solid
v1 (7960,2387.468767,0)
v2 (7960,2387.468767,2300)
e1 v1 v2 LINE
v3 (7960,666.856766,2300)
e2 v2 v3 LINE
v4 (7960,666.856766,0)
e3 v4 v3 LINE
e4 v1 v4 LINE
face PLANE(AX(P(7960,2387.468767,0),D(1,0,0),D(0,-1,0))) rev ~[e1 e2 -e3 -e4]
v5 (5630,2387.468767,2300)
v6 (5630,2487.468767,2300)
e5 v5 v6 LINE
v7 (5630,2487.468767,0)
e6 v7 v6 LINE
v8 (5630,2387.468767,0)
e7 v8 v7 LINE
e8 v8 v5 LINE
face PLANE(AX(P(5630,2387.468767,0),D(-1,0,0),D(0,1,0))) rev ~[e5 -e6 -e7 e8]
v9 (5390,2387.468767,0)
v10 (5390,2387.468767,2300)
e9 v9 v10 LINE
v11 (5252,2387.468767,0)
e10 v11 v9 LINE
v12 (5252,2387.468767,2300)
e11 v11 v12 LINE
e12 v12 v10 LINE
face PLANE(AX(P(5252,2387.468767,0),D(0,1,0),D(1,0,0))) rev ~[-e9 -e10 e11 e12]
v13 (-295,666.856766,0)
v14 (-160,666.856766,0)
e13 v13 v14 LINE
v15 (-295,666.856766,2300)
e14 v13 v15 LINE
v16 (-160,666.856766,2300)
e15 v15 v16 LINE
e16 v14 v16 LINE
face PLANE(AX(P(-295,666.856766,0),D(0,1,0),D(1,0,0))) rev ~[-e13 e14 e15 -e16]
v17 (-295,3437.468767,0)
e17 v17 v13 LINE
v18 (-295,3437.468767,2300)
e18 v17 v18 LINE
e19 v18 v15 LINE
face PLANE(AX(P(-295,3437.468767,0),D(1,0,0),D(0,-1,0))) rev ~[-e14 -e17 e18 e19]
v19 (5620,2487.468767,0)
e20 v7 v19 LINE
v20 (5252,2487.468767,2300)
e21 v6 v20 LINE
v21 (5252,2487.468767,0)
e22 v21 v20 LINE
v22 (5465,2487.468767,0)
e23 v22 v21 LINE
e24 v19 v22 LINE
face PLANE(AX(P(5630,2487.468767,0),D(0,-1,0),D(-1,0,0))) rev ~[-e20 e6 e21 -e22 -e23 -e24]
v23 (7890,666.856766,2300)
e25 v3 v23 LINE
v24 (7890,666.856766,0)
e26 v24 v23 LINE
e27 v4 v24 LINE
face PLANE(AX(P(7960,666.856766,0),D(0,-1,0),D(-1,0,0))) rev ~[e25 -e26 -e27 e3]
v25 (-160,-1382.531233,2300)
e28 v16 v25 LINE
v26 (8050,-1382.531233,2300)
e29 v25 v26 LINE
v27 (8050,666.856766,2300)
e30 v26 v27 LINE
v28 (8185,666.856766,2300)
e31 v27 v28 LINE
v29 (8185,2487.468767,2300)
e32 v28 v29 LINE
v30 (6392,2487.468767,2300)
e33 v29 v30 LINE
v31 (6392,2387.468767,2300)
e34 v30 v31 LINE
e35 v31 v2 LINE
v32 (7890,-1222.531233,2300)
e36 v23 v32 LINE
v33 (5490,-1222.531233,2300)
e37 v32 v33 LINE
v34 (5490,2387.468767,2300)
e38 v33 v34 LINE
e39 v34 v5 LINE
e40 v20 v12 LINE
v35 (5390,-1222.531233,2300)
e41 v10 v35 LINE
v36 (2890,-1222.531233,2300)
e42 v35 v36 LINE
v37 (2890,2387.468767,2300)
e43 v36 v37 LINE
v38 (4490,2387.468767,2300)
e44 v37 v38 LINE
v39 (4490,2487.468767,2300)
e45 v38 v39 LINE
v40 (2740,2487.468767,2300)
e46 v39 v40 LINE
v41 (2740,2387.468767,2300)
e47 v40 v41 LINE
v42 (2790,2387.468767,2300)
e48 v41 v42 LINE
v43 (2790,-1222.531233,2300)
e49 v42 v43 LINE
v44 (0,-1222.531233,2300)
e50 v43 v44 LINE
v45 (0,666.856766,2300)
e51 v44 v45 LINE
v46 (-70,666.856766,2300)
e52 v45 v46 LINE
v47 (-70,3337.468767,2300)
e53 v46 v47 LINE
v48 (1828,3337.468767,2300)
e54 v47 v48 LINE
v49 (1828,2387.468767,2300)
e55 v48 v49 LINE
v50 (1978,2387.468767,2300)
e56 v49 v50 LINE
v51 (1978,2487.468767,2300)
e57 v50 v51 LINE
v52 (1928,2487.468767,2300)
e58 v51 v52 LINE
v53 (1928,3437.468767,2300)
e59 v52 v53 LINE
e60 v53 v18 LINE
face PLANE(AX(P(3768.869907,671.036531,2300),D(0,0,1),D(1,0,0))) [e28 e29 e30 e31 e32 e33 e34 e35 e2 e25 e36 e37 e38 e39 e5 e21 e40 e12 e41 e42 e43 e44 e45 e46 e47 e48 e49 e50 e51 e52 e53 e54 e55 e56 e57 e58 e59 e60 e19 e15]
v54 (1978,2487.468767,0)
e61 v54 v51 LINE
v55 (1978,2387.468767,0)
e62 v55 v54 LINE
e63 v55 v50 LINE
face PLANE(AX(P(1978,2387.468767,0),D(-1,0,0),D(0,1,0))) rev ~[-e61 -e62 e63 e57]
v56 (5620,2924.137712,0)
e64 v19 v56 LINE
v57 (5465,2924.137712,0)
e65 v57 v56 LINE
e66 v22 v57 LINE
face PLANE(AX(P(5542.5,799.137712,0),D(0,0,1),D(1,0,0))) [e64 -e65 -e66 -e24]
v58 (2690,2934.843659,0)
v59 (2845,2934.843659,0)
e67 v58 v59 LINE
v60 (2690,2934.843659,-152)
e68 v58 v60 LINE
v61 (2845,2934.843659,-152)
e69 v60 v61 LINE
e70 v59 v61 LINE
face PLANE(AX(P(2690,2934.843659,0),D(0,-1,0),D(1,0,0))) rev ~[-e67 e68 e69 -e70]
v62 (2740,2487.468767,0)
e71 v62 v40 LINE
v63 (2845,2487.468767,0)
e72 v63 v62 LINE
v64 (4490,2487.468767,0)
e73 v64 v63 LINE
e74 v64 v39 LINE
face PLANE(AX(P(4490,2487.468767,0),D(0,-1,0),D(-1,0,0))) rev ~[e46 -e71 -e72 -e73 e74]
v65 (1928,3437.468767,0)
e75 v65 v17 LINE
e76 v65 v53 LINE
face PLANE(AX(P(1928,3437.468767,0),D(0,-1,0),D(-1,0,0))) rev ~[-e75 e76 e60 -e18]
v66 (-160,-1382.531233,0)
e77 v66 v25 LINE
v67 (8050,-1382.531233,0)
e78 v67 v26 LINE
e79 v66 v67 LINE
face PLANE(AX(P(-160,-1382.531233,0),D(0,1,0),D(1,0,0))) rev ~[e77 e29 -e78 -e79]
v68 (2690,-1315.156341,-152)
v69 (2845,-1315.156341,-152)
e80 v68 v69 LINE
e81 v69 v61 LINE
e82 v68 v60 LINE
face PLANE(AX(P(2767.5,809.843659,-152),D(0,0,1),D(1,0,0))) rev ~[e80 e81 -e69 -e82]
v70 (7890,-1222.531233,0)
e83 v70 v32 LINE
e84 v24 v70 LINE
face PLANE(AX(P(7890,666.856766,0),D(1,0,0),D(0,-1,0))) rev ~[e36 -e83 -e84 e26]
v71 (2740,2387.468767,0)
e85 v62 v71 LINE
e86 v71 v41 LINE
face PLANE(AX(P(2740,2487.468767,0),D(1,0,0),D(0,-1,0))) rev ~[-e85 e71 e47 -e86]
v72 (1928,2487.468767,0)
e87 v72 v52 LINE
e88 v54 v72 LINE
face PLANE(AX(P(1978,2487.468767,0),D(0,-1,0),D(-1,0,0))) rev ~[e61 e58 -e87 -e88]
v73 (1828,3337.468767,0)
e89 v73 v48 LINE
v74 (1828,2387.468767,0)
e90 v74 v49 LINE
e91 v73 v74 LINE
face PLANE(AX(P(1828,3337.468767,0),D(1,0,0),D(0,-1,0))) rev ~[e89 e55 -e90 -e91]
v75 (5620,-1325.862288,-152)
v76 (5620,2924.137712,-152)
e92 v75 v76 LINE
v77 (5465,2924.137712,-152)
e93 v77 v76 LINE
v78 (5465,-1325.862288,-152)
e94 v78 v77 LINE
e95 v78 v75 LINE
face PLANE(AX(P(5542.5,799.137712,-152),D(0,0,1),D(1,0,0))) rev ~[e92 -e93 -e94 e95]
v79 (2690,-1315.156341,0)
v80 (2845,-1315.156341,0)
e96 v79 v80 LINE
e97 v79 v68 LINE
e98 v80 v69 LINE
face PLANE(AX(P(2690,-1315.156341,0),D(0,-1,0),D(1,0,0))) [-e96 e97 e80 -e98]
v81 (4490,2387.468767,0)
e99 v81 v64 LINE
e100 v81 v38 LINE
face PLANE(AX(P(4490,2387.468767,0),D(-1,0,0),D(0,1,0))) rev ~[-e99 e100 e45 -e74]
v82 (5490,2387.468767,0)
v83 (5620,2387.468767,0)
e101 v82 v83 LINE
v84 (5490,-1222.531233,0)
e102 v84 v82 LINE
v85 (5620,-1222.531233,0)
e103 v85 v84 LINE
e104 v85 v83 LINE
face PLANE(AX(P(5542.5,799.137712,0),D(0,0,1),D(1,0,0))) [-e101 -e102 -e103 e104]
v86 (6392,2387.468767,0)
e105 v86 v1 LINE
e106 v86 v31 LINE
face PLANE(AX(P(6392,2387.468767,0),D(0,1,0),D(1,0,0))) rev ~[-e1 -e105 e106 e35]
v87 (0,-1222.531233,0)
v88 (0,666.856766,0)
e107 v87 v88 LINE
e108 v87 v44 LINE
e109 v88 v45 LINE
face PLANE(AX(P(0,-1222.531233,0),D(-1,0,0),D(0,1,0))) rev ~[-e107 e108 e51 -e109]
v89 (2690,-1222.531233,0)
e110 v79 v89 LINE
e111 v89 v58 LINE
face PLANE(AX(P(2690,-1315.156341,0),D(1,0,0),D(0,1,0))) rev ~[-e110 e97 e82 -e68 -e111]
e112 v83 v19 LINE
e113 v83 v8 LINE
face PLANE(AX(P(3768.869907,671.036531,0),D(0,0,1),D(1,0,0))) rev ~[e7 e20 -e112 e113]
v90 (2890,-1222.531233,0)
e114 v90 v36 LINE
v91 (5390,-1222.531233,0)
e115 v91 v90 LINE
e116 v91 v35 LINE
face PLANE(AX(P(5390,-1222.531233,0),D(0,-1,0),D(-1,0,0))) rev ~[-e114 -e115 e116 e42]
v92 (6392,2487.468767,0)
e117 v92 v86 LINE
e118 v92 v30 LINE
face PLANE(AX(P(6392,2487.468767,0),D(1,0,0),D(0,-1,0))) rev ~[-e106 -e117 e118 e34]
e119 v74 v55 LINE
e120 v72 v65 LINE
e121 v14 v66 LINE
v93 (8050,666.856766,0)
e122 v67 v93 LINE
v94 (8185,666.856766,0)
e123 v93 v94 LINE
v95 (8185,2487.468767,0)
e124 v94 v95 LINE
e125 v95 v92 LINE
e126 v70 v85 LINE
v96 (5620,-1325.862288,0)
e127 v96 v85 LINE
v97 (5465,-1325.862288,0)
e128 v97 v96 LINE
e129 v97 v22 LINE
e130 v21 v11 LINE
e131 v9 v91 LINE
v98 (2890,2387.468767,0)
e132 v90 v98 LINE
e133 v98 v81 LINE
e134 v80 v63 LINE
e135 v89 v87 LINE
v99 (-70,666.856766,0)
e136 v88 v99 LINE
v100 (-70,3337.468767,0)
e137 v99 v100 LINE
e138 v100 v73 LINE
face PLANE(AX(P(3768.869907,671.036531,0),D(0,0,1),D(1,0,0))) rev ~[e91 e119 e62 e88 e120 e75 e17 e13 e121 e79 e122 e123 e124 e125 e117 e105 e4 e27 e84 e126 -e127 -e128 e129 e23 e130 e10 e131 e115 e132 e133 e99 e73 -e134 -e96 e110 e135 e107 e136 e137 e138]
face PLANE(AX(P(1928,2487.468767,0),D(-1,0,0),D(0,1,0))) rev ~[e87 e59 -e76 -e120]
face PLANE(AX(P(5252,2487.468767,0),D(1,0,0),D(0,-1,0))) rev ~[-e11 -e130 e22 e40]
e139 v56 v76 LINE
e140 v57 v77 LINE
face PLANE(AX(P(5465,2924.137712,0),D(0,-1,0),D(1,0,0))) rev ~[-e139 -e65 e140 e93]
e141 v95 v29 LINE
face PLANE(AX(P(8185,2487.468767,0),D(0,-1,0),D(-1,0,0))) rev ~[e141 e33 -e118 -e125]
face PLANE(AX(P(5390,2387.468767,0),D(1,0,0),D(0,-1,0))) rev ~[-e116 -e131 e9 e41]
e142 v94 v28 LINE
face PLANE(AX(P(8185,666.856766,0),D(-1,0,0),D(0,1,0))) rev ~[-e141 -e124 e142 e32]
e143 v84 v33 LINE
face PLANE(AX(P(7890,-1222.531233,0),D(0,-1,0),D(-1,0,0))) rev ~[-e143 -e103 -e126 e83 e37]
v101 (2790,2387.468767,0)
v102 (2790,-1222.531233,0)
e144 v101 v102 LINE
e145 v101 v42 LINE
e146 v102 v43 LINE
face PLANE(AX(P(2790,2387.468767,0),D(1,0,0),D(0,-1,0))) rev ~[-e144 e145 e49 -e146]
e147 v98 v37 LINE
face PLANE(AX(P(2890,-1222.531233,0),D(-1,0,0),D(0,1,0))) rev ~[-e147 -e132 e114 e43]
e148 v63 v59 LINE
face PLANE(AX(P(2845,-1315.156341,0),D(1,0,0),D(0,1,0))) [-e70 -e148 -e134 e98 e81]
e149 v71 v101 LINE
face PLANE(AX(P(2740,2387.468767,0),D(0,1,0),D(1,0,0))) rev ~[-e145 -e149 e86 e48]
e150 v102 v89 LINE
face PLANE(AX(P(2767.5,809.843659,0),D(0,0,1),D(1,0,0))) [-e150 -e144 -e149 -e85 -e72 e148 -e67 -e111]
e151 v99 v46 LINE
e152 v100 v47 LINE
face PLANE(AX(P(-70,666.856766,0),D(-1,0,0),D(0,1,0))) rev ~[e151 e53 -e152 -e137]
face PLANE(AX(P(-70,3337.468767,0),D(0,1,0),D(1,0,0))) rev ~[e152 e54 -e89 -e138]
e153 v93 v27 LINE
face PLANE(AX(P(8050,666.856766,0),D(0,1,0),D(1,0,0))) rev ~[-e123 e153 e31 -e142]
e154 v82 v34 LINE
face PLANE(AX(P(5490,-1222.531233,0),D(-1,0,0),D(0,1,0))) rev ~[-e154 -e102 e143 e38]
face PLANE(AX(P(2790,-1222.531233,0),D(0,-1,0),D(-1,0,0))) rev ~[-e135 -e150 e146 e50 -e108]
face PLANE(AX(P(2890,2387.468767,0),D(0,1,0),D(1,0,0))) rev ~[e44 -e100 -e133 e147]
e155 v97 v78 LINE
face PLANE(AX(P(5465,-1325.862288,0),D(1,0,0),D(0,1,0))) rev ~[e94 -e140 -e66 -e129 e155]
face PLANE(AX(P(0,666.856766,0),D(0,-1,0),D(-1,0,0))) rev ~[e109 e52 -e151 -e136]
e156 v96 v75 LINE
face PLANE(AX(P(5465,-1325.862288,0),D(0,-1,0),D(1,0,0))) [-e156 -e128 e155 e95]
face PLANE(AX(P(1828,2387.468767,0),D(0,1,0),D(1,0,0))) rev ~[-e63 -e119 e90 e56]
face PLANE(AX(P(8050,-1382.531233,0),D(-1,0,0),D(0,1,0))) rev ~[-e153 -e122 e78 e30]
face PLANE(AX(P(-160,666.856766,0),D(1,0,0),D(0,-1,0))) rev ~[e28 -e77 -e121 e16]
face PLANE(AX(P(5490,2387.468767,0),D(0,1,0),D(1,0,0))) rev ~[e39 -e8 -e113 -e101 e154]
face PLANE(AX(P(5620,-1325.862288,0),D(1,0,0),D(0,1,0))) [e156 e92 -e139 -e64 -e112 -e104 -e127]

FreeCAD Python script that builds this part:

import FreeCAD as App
import Part
import Sketcher

V = App.Vector


def add_polygon(sketch, points):
    """Adds a closed chain of lines whose ends are joined by coincident constraints."""
    first, n = sketch.GeometryCount, len(points)
    for a, b in zip(points, points[1:] + points[:1]):
        sketch.addGeometry(Part.LineSegment(App.Vector(*a, 0), App.Vector(*b, 0)), False)
    for i in range(n):
        sketch.addConstraint(Sketcher.Constraint("Coincident", first + i, 2, first + (i + 1) % n, 1))

doc = App.newDocument("Part")
body = doc.addObject("PartDesign::Body", "Body")

sketch1 = body.newObject("Sketcher::SketchObject", "Sketch")
sketch1.AttachmentSupport = (doc.getObject("XY_Plane"), [""])
sketch1.MapMode = "FlatFace"
add_polygon(sketch1, [(2790, -1223), (0, -1223), (0, 667), (-70, 667), (-70, 3337), (1828, 3337), (1828, 2387), (1978, 2387), (1978, 2487), (1928, 2487), (1928, 3437), (-295, 3437), (-295, 667), (-160, 667), (-160, -1383), (8050, -1383), (8050, 667), (8185, 667), (8185, 2487), (6392, 2487), (6392, 2387), (7960, 2387), (7960, 667), (7890, 667), (7890, -1223), (5490, -1223), (5490, 2387), (5630, 2387), (5630, 2487), (5252, 2487), (5252, 2387), (5390, 2387), (5390, -1223), (2890, -1223), (2890, 2387), (4490, 2387), (4490, 2487), (2740, 2487), (2740, 2387), (2790, 2387)])
sketch1.addConstraint(Sketcher.Constraint("Horizontal", 0))
sketch1.addConstraint(Sketcher.Constraint("Vertical", 1))
sketch1.addConstraint(Sketcher.Constraint("Horizontal", 2))
sketch1.addConstraint(Sketcher.Constraint("Vertical", 3))
sketch1.addConstraint(Sketcher.Constraint("Horizontal", 4))
sketch1.addConstraint(Sketcher.Constraint("Vertical", 5))
sketch1.addConstraint(Sketcher.Constraint("Horizontal", 6))
sketch1.addConstraint(Sketcher.Constraint("Vertical", 7))
sketch1.addConstraint(Sketcher.Constraint("Horizontal", 8))
sketch1.addConstraint(Sketcher.Constraint("Vertical", 9))
sketch1.addConstraint(Sketcher.Constraint("Horizontal", 10))
sketch1.addConstraint(Sketcher.Constraint("Vertical", 11))
sketch1.addConstraint(Sketcher.Constraint("Horizontal", 12))
sketch1.addConstraint(Sketcher.Constraint("Vertical", 13))
sketch1.addConstraint(Sketcher.Constraint("Horizontal", 14))
sketch1.addConstraint(Sketcher.Constraint("Vertical", 15))
sketch1.addConstraint(Sketcher.Constraint("Horizontal", 16))
sketch1.addConstraint(Sketcher.Constraint("Vertical", 17))
sketch1.addConstraint(Sketcher.Constraint("Horizontal", 18))
sketch1.addConstraint(Sketcher.Constraint("Vertical", 19))
sketch1.addConstraint(Sketcher.Constraint("Horizontal", 20))
sketch1.addConstraint(Sketcher.Constraint("Vertical", 21))
sketch1.addConstraint(Sketcher.Constraint("Horizontal", 22))
sketch1.addConstraint(Sketcher.Constraint("Vertical", 23))
sketch1.addConstraint(Sketcher.Constraint("Horizontal", 24))
sketch1.addConstraint(Sketcher.Constraint("Vertical", 25))
sketch1.addConstraint(Sketcher.Constraint("Horizontal", 26))
sketch1.addConstraint(Sketcher.Constraint("Vertical", 27))
sketch1.addConstraint(Sketcher.Constraint("Horizontal", 28))
sketch1.addConstraint(Sketcher.Constraint("Vertical", 29))
sketch1.addConstraint(Sketcher.Constraint("Horizontal", 30))
sketch1.addConstraint(Sketcher.Constraint("Vertical", 31))
sketch1.addConstraint(Sketcher.Constraint("Horizontal", 32))
sketch1.addConstraint(Sketcher.Constraint("Vertical", 33))
sketch1.addConstraint(Sketcher.Constraint("Horizontal", 34))
sketch1.addConstraint(Sketcher.Constraint("Vertical", 35))
sketch1.addConstraint(Sketcher.Constraint("Horizontal", 36))
sketch1.addConstraint(Sketcher.Constraint("Vertical", 37))
sketch1.addConstraint(Sketcher.Constraint("Horizontal", 38))
sketch1.addConstraint(Sketcher.Constraint("Vertical", 39))
sketch1.addConstraint(Sketcher.Constraint("PointOnObject", 0, 2, -2))
sketch1.addConstraint(Sketcher.Constraint("Horizontal", 2, 2, 11, 2))
sketch1.addConstraint(Sketcher.Constraint("Horizontal", 12, 2, 15, 2))
sketch1.addConstraint(Sketcher.Constraint("Horizontal", 8, 2, 17, 2))
sketch1.addConstraint(Sketcher.Constraint("Horizontal", 6, 2, 19, 2))
sketch1.addConstraint(Sketcher.Constraint("Horizontal", 16, 2, 21, 2))
sketch1.addConstraint(Sketcher.Constraint("Horizontal", 0, 2, 23, 2))
sketch1.addConstraint(Sketcher.Constraint("Horizontal", 20, 2, 25, 2))
sketch1.addConstraint(Sketcher.Constraint("Horizontal", 18, 2, 27, 2))
sketch1.addConstraint(Sketcher.Constraint("Horizontal", 26, 2, 29, 2))
sketch1.addConstraint(Sketcher.Constraint("Horizontal", 24, 2, 31, 2))
sketch1.addConstraint(Sketcher.Constraint("Horizontal", 30, 2, 33, 2))
sketch1.addConstraint(Sketcher.Constraint("Horizontal", 28, 2, 35, 2))
sketch1.addConstraint(Sketcher.Constraint("Horizontal", 34, 2, 37, 2))
sketch1.addConstraint(Sketcher.Constraint("Equal", 12, 16))
sketch1.addConstraint(Sketcher.Constraint("Equal", 2, 22))
sketch1.addConstraint(Sketcher.Constraint("Equal", 8, 38))
sketch1.addConstraint(Sketcher.Constraint("Equal", 5, 9))
sketch1.addConstraint(Sketcher.Constraint("DistanceX", 0, 2, 0, 1, 2790.0))
sketch1.addConstraint(Sketcher.Constraint("DistanceX", 2, 2, 2, 1, 70.0))
sketch1.addConstraint(Sketcher.Constraint("DistanceX", 4, 1, 4, 2, 1898.0))
sketch1.addConstraint(Sketcher.Constraint("DistanceX", 6, 1, 6, 2, 150.0))
sketch1.addConstraint(Sketcher.Constraint("DistanceX", 8, 2, 8, 1, 50.0))
sketch1.addConstraint(Sketcher.Constraint("DistanceX", 10, 2, 10, 1, 2223.0))
sketch1.addConstraint(Sketcher.Constraint("DistanceX", 12, 1, 12, 2, 135.0))
sketch1.addConstraint(Sketcher.Constraint("DistanceX", 14, 1, 14, 2, 8210.0))
sketch1.addConstraint(Sketcher.Constraint("DistanceX", 18, 2, 18, 1, 1793.0))
sketch1.addConstraint(Sketcher.Constraint("DistanceX", 20, 1, 20, 2, 1568.0))
sketch1.addConstraint(Sketcher.Constraint("DistanceX", 24, 2, 24, 1, 2400.0))
sketch1.addConstraint(Sketcher.Constraint("DistanceX", 26, 1, 26, 2, 140.0))
sketch1.addConstraint(Sketcher.Constraint("DistanceX", 28, 2, 28, 1, 378.0))
sketch1.addConstraint(Sketcher.Constraint("DistanceX", 30, 1, 30, 2, 138.0))
sketch1.addConstraint(Sketcher.Constraint("DistanceX", 32, 2, 32, 1, 2500.0))
sketch1.addConstraint(Sketcher.Constraint("DistanceX", 34, 1, 34, 2, 1600.0))
sketch1.addConstraint(Sketcher.Constraint("DistanceY", 5, 2, 5, 1, 950.0))
sketch1.addConstraint(Sketcher.Constraint("DistanceY", 7, 1, 7, 2, 100.0))
sketch1.addConstraint(Sketcher.Constraint("DistanceY", 25, 1, 25, 2, 3610.0))
sketch1.addConstraint(Sketcher.Constraint("DistanceY", 13, 2, 0, 2, 160.0))
sketch1.addConstraint(Sketcher.Constraint("DistanceY", 1, 1, 1, 2, 1889.387999))
sketch1.addConstraint(Sketcher.Constraint("DistanceY", 0, 2, -1, 1, 1222.531233))
pad1 = body.newObject("PartDesign::Pad", "Pad")
pad1.Profile = sketch1
pad1.Length = 2300

sketch2 = body.newObject("Sketcher::SketchObject", "Sketch001")
sketch2.AttachmentSupport = (doc.getObject("XY_Plane"), [""])
sketch2.MapMode = "FlatFace"
add_polygon(sketch2, [(2690, 2935), (2690, -1315), (2845, -1315), (2845, 2935)])
add_polygon(sketch2, [(5465, 2924), (5465, -1326), (5620, -1326), (5620, 2924)])
sketch2.addConstraint(Sketcher.Constraint("Vertical", 0))
sketch2.addConstraint(Sketcher.Constraint("Horizontal", 1))
sketch2.addConstraint(Sketcher.Constraint("Vertical", 2))
sketch2.addConstraint(Sketcher.Constraint("Horizontal", 3))
sketch2.addConstraint(Sketcher.Constraint("Vertical", 4))
sketch2.addConstraint(Sketcher.Constraint("Horizontal", 5))
sketch2.addConstraint(Sketcher.Constraint("Vertical", 6))
sketch2.addConstraint(Sketcher.Constraint("Horizontal", 7))
sketch2.addConstraint(Sketcher.Constraint("Equal", 3, 5))
sketch2.addConstraint(Sketcher.Constraint("Equal", 2, 4))
sketch2.addConstraint(Sketcher.Constraint("DistanceX", 1, 1, 1, 2, 155.0))
sketch2.addConstraint(Sketcher.Constraint("DistanceY", 0, 2, 0, 1, 4250.0))
sketch2.addConstraint(Sketcher.Constraint("DistanceX", -1, 1, 0, 2, 2690.0))
sketch2.addConstraint(Sketcher.Constraint("DistanceX", -1, 1, 4, 2, 5465.0))
sketch2.addConstraint(Sketcher.Constraint("DistanceY", 0, 2, -1, 1, 1315.156341))
sketch2.addConstraint(Sketcher.Constraint("DistanceY", 4, 2, -1, 1, 1325.862288))
pad2 = body.newObject("PartDesign::Pad", "Pad001")
pad2.Profile = sketch2
pad2.Length = 152
pad2.Reversed = True

doc.recompute()
